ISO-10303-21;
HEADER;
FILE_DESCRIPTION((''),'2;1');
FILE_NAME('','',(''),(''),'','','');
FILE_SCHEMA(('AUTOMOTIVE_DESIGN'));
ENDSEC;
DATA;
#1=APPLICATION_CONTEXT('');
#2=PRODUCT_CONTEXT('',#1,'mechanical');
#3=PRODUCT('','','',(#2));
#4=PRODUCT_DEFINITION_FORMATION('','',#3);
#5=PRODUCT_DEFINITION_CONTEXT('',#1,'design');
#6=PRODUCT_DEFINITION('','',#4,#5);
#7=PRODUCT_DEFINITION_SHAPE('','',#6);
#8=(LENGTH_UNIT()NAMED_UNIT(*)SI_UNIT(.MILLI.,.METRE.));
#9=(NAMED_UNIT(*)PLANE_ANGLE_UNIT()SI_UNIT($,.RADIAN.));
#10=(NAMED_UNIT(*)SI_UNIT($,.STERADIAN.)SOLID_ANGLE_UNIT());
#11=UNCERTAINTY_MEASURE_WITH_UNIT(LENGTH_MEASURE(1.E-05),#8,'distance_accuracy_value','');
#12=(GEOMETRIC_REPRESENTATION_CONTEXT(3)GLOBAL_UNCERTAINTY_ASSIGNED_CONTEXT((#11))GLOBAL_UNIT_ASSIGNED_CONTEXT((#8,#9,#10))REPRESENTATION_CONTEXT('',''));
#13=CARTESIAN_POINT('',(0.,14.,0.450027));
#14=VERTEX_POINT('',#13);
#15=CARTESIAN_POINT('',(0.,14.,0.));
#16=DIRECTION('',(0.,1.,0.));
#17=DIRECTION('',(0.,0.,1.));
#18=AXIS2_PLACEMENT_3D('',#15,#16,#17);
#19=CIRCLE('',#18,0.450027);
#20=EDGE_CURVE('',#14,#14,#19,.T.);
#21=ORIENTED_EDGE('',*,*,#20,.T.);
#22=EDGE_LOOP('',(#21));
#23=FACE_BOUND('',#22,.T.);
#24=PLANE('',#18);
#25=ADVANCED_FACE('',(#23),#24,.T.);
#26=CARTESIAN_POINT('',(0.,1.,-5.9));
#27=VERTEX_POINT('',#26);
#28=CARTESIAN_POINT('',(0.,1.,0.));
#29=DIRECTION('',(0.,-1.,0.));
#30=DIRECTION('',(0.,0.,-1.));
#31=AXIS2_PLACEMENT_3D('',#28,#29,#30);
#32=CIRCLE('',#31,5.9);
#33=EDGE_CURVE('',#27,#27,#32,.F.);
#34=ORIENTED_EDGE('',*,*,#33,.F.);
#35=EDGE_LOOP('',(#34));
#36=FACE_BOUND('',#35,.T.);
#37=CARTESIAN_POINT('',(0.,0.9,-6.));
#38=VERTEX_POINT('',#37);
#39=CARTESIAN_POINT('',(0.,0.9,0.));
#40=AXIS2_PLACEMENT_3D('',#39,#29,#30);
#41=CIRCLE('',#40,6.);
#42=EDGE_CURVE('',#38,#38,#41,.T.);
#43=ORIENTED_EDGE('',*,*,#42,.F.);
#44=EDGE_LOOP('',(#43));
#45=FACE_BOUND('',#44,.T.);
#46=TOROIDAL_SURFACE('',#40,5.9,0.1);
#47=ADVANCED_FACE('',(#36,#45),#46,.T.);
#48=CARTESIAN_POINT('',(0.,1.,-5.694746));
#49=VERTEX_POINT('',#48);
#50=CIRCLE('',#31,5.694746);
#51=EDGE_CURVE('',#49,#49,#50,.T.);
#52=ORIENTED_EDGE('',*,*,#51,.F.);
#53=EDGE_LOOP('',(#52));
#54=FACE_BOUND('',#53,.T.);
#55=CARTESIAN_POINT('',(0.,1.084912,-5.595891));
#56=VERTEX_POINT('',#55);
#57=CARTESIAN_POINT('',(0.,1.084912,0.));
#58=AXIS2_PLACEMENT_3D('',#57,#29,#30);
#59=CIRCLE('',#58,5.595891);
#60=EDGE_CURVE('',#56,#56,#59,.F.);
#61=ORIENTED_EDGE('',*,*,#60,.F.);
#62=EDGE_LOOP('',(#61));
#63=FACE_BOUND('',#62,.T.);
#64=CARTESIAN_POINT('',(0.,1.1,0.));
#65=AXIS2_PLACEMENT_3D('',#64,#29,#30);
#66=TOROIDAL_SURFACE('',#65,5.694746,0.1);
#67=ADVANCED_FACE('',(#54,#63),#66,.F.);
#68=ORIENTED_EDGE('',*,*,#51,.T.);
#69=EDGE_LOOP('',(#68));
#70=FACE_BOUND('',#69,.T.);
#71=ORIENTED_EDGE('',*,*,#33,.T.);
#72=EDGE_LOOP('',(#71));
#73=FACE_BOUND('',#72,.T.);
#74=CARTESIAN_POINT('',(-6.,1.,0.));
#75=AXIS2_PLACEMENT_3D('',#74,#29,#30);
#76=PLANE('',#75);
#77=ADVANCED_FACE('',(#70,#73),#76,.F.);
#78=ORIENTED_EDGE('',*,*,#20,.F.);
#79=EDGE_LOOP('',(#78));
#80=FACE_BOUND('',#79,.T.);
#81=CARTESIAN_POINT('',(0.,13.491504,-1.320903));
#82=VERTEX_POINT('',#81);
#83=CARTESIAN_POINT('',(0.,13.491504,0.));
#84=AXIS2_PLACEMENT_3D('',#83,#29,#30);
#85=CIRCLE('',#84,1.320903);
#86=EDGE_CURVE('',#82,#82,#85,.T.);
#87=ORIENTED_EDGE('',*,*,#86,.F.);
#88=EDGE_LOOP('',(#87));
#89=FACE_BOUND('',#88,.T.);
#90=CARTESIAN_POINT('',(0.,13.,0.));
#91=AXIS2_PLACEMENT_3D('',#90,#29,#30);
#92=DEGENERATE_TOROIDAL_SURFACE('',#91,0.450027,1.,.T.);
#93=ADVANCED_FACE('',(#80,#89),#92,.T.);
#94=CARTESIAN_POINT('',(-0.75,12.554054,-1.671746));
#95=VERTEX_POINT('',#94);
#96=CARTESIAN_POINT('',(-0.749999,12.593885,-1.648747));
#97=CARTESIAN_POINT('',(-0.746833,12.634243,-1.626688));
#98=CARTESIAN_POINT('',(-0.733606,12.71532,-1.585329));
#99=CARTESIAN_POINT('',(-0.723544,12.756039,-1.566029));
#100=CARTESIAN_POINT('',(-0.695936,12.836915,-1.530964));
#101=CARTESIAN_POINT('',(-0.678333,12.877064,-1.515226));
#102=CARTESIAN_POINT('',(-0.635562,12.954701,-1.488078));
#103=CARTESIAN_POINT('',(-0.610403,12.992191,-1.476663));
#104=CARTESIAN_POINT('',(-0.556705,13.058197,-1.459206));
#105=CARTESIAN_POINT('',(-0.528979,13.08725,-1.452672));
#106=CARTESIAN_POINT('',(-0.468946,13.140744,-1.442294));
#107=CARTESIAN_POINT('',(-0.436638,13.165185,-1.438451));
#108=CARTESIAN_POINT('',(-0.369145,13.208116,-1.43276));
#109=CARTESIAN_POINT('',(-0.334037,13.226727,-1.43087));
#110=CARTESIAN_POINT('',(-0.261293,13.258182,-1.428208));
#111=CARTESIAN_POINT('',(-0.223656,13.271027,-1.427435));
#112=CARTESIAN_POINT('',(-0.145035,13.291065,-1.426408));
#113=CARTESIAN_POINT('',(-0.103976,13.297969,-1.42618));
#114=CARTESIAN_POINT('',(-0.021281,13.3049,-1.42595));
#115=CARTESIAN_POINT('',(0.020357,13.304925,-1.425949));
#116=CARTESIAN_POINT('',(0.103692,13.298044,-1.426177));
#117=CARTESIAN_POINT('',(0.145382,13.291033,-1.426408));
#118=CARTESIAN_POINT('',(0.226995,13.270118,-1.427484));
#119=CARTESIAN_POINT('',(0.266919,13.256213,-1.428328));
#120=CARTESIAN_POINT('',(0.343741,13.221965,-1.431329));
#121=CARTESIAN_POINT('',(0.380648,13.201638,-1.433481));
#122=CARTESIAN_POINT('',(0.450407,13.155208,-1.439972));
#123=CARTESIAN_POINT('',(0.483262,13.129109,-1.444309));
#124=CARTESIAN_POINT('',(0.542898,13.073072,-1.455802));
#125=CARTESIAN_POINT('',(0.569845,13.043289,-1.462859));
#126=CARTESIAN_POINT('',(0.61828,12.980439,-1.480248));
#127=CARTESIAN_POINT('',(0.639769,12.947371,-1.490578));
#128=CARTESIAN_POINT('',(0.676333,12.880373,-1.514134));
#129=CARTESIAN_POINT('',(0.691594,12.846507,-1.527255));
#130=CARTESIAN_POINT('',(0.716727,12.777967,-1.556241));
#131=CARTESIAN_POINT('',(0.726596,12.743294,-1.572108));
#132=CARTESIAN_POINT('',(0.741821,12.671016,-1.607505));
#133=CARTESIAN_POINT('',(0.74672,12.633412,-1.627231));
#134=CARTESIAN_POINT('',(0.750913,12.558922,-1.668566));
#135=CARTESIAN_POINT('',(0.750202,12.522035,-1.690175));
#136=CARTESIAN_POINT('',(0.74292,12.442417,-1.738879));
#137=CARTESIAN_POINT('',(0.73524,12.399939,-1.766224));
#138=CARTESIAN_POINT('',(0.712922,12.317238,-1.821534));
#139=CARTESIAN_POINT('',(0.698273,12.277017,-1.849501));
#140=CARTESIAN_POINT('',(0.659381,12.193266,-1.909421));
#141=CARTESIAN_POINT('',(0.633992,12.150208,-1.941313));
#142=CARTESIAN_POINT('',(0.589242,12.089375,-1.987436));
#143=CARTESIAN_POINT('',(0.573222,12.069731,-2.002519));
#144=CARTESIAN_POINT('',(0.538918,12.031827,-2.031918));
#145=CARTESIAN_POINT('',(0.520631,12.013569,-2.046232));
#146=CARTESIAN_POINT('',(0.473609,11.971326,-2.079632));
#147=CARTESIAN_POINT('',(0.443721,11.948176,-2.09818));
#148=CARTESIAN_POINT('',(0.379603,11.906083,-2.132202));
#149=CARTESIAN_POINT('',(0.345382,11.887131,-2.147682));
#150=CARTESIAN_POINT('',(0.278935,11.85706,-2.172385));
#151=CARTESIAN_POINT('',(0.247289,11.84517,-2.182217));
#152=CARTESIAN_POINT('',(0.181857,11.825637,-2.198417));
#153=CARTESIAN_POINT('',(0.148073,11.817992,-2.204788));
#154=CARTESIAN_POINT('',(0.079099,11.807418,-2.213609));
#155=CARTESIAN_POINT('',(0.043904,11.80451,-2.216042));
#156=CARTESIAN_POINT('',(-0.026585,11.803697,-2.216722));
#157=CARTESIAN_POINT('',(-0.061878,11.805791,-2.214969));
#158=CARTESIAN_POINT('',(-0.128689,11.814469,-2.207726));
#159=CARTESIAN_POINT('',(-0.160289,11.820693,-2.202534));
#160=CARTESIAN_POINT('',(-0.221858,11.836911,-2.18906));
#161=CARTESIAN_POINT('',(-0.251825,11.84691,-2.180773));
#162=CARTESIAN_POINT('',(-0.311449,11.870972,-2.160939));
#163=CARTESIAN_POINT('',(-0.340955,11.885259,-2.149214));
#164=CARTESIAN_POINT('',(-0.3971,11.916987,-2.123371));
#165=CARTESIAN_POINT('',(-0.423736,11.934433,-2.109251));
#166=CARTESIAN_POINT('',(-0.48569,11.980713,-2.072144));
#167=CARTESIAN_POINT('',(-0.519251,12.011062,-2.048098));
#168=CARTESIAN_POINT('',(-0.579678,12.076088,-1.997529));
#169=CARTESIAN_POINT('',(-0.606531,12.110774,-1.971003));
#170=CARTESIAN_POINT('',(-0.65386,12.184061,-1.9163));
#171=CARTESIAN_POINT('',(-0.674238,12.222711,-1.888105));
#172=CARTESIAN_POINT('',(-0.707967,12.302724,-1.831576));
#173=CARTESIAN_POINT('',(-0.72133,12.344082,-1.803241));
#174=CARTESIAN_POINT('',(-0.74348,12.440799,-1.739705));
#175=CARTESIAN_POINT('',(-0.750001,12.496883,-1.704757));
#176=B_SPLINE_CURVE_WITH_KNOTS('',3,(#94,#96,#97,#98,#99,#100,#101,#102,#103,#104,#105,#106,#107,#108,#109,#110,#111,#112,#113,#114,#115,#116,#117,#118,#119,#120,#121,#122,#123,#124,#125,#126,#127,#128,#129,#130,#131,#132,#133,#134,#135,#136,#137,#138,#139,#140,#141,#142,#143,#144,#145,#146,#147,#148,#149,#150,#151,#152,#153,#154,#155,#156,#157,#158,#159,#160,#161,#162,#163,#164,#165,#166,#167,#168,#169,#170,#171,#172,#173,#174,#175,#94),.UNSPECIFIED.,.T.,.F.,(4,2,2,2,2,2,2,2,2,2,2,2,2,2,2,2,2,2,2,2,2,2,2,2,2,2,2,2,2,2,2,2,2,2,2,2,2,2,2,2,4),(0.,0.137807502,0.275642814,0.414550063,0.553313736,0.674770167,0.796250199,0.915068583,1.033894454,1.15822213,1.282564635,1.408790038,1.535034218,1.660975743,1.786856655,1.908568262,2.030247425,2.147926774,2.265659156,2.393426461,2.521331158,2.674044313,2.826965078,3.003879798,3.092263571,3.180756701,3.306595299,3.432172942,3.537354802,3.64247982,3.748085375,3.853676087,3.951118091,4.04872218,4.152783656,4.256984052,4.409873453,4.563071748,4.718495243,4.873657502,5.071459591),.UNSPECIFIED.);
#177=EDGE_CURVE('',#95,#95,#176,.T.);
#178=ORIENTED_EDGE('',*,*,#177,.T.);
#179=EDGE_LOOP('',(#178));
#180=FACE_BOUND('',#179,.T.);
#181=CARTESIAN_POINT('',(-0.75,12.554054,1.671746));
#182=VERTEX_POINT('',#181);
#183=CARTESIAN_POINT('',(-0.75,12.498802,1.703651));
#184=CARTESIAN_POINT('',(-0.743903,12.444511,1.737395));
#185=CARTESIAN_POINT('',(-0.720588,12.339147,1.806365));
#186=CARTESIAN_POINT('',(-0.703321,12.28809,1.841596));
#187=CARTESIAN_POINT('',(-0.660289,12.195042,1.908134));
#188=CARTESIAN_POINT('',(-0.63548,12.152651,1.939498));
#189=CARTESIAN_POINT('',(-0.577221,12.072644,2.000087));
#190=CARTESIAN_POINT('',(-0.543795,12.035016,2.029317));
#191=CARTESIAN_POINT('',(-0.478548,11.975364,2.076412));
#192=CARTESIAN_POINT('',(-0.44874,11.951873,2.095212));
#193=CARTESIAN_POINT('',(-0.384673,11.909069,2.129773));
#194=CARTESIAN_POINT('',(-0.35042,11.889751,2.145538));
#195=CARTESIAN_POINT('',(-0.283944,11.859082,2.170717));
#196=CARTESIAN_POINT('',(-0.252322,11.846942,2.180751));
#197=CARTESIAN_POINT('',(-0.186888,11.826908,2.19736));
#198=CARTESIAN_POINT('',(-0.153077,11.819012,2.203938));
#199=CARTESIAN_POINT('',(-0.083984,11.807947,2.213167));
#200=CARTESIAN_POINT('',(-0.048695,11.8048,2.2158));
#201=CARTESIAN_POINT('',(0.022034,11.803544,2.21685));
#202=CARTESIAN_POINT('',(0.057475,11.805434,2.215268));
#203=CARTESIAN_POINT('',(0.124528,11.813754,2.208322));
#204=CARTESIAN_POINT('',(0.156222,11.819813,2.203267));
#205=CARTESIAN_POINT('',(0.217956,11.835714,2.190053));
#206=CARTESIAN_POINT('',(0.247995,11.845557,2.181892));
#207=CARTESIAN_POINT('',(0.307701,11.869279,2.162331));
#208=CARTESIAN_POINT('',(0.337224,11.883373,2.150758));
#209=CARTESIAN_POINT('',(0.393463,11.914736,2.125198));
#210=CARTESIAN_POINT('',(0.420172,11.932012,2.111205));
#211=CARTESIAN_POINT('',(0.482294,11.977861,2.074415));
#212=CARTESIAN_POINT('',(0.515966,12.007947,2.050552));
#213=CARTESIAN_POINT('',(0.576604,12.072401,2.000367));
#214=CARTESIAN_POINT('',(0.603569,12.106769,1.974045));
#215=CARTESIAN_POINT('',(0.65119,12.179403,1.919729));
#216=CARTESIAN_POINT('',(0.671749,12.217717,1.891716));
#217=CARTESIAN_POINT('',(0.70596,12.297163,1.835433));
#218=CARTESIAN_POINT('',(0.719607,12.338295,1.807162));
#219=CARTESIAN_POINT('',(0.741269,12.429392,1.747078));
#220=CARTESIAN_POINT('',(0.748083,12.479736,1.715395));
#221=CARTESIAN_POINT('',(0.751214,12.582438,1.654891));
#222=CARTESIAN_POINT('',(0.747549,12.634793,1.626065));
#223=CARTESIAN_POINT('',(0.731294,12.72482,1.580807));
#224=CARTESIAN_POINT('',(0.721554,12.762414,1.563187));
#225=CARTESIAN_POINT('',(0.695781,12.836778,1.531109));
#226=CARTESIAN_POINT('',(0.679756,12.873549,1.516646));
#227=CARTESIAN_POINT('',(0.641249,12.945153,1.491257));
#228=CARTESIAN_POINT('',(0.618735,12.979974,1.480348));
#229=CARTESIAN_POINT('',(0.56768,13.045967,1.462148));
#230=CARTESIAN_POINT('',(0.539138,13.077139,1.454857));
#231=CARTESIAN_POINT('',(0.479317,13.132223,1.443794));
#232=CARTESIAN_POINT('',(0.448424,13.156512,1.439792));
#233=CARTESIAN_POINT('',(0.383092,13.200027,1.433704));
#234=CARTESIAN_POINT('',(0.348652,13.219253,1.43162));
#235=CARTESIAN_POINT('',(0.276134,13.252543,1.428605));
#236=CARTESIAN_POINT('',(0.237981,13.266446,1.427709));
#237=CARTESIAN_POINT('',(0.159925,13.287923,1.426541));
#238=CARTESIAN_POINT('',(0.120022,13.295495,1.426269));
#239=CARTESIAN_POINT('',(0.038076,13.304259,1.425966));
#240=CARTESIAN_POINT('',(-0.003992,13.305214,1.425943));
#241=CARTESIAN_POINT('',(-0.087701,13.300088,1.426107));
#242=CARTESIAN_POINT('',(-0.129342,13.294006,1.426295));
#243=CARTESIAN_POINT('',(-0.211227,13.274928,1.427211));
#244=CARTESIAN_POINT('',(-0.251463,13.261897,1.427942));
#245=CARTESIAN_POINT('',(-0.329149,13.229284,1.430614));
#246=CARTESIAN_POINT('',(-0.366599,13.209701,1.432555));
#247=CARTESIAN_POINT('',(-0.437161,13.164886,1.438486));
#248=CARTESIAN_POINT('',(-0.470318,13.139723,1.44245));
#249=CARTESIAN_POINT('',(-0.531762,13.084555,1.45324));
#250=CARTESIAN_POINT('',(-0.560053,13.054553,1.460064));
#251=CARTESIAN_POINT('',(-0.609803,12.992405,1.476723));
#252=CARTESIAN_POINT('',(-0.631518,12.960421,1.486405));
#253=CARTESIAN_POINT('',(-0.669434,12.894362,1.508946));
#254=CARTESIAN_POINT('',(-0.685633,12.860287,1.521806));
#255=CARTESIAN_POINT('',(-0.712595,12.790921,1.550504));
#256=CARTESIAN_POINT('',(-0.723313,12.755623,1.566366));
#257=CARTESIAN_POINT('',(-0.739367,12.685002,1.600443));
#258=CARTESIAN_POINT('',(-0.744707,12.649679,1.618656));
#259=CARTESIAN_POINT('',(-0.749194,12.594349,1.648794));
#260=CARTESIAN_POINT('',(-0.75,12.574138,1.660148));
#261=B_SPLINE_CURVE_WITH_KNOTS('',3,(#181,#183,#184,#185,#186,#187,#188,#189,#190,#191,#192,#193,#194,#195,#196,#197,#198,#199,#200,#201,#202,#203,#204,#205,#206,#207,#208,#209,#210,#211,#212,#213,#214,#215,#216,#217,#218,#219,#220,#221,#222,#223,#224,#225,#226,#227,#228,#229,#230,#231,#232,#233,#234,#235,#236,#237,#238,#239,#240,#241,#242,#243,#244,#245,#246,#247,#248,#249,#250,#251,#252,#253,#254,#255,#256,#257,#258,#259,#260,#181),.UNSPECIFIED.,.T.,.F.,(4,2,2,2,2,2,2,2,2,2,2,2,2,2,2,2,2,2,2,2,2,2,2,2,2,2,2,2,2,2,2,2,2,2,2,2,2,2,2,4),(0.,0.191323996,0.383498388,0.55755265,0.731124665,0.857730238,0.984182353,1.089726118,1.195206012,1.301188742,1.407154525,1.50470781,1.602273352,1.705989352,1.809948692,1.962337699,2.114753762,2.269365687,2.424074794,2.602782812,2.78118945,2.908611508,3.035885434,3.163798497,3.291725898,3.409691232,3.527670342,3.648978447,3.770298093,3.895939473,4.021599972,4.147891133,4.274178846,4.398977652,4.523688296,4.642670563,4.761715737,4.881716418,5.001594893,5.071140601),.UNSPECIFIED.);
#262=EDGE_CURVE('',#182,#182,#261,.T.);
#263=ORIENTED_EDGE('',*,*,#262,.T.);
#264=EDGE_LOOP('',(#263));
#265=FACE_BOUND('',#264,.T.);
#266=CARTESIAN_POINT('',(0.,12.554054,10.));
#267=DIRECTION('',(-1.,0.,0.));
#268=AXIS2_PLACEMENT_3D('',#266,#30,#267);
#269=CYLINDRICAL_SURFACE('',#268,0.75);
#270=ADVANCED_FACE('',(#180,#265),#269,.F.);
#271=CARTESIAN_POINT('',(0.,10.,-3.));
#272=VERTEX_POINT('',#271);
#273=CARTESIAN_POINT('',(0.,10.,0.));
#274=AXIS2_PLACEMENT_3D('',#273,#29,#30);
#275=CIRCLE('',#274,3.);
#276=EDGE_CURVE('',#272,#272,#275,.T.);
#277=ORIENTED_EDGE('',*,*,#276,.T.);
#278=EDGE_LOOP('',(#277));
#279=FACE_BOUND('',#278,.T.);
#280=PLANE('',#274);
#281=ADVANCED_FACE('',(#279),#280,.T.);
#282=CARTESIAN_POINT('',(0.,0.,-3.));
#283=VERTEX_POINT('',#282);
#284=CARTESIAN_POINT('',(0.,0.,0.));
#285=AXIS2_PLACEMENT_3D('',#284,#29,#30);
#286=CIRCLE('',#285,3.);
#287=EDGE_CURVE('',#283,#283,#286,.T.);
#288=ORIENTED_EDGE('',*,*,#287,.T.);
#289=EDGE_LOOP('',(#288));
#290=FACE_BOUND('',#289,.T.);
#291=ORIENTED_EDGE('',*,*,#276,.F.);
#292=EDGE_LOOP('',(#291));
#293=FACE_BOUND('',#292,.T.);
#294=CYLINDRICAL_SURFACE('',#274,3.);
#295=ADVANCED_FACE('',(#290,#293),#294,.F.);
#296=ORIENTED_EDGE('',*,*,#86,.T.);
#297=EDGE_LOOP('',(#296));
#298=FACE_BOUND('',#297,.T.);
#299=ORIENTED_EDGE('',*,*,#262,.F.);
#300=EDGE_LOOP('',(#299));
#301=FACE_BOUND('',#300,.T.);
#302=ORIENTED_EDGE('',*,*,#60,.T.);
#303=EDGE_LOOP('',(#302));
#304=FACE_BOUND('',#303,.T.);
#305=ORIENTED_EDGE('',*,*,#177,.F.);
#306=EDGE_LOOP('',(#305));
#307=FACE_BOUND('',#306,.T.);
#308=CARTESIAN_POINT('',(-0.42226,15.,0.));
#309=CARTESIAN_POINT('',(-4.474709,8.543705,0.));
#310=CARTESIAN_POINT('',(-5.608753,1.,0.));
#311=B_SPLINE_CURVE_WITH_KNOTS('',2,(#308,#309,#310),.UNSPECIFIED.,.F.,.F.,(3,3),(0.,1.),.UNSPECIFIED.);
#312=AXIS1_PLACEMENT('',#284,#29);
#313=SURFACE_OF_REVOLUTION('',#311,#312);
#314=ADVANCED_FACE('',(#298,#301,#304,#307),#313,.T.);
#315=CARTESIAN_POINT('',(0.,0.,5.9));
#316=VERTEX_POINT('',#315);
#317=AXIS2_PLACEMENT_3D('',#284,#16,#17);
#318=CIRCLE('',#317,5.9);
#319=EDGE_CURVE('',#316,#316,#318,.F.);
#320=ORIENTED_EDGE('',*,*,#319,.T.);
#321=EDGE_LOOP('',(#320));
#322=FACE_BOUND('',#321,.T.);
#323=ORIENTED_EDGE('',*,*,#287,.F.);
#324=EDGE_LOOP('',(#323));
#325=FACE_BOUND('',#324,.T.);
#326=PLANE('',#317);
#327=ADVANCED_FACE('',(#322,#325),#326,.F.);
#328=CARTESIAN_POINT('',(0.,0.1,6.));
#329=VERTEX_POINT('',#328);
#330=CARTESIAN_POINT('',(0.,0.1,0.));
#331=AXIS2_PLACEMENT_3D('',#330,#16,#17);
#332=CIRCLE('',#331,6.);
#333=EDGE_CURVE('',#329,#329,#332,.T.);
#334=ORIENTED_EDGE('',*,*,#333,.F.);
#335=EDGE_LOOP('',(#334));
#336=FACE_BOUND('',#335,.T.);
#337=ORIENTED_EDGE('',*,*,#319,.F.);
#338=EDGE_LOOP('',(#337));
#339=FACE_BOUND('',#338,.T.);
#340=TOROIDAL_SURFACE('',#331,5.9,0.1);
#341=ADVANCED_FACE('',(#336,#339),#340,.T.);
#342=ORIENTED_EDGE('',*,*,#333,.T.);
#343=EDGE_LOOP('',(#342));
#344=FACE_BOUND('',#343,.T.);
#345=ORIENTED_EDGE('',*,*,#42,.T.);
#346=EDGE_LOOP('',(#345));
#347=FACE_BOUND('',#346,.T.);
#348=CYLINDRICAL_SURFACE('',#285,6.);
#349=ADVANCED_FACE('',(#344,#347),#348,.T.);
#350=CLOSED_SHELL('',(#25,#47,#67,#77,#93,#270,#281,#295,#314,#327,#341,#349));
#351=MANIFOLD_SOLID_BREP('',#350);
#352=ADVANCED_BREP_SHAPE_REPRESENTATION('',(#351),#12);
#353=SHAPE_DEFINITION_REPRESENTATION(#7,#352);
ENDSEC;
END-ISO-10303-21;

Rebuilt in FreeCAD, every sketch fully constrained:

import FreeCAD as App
import Part
import Sketcher


def edges_at(feature, points):
    """Names of the edges that pass closest to the given points."""
    edges = feature.Shape.Edges
    near = lambda p: min(range(len(edges)), key=lambda i: edges[i].distToShape(Part.Vertex(*p))[0])
    return sorted({f"Edge{near(p) + 1}" for p in points})

doc = App.newDocument("Part")
body = doc.addObject("PartDesign::Body", "Body")

sketch1 = body.newObject("Sketcher::SketchObject", "Sketch")
sketch1.AttachmentSupport = (doc.getObject("XY_Plane"), [""])
sketch1.MapMode = "FlatFace"
sketch1.addGeometry(Part.LineSegment(App.Vector(0, 0, 0), App.Vector(0, 15, 0)), False)
sketch1.addGeometry(Part.LineSegment(App.Vector(0, 15, 0), App.Vector(-0.42226, 15, 0)), False)
sketch1.addGeometry(Part.BSplineCurve([App.Vector(-5.608753, 1, 0), App.Vector(-4.474709, 8.543705, 0), App.Vector(-0.42226, 15, 0)], [3, 3], [0, 1], False, 2, [1, 1, 1], False), False)
sketch1.addGeometry(Part.LineSegment(App.Vector(-5.608753, 1, 0), App.Vector(-6, 1, 0)), False)
sketch1.addGeometry(Part.LineSegment(App.Vector(-6, 1, 0), App.Vector(-6, 0, 0)), False)
sketch1.addGeometry(Part.LineSegment(App.Vector(-6, 0, 0), App.Vector(0, 0, 0)), False)
sketch1.addConstraint(Sketcher.Constraint("Block", 2))
sketch1.addConstraint(Sketcher.Constraint("Coincident", 0, 2, 1, 1))
sketch1.addConstraint(Sketcher.Constraint("Coincident", 1, 2, 2, 2))
sketch1.addConstraint(Sketcher.Constraint("Coincident", 2, 1, 3, 1))
sketch1.addConstraint(Sketcher.Constraint("Coincident", 3, 2, 4, 1))
sketch1.addConstraint(Sketcher.Constraint("Coincident", 4, 2, 5, 1))
sketch1.addConstraint(Sketcher.Constraint("Coincident", 5, 2, 0, 1))
sketch1.addConstraint(Sketcher.Constraint("Vertical", 0))
sketch1.addConstraint(Sketcher.Constraint("Horizontal", 1))
sketch1.addConstraint(Sketcher.Constraint("Horizontal", 3))
sketch1.addConstraint(Sketcher.Constraint("Vertical", 4))
sketch1.addConstraint(Sketcher.Constraint("Horizontal", 5))
sketch1.addConstraint(Sketcher.Constraint("Coincident", 5, 2, -1, 1))
sketch1.addConstraint(Sketcher.Constraint("DistanceX", 5, 1, 5, 2, 6.0))
revolution = body.newObject("PartDesign::Revolution", "Revolution")
revolution.Profile = sketch1
revolution.ReferenceAxis = (sketch1, ["V_Axis"])
revolution.Angle = 360

sketch2 = body.newObject("Sketcher::SketchObject", "Sketch001")
sketch2.AttachmentSupport = (doc.getObject("XZ_Plane"), [""])
sketch2.MapMode = "FlatFace"
sketch2.AttachmentOffset = App.Placement(App.Vector(0, 0, -15), App.Rotation())
sketch2.addGeometry(Part.Circle(App.Vector(0, 0, 0), App.Vector(0, 0, 1), 1.103726), False)
sketch2.addConstraint(Sketcher.Constraint("Coincident", 0, 3, -1, 1))
sketch2.addConstraint(Sketcher.Constraint("Diameter", 0, 2.207451))
pocket1 = body.newObject("PartDesign::Pocket", "Pocket")
pocket1.Profile = sketch2
pocket1.Length = 1
pocket1.Reversed = True
doc.recompute()

fillet = body.newObject("PartDesign::Fillet", "Fillet")
fillet.Base = (pocket1, edges_at(pocket1, [(1.029, 14, 0)]))
fillet.Radius = 1

sketch3 = body.newObject("Sketcher::SketchObject", "Sketch002")
sketch3.AttachmentSupport = (doc.getObject("XY_Plane"), [""])
sketch3.MapMode = "FlatFace"
sketch3.addGeometry(Part.Circle(App.Vector(0, 12.554054, 0), App.Vector(0, 0, 1), 0.75), False)
sketch3.addConstraint(Sketcher.Constraint("PointOnObject", 0, 3, -2))
sketch3.addConstraint(Sketcher.Constraint("Diameter", 0, 1.5))
sketch3.addConstraint(Sketcher.Constraint("DistanceY", -1, 1, 0, 3, 12.554054))
pocket2 = body.newObject("PartDesign::Pocket", "Pocket001")
pocket2.Profile = sketch3
pocket2.Type = "ThroughAll"
pocket2.Midplane = True
doc.recompute()

fillet2 = body.newObject("PartDesign::Fillet", "Fillet001")
fillet2.Base = (pocket2, edges_at(pocket2, [(6, 0, 0), (6, 1, 0), (5.609, 1, 0)]))
fillet2.Radius = 0.1

sketch4 = body.newObject("Sketcher::SketchObject", "Sketch003")
sketch4.AttachmentSupport = (doc.getObject("XZ_Plane"), [""])
sketch4.MapMode = "FlatFace"
sketch4.addGeometry(Part.Circle(App.Vector(0, 0, 0), App.Vector(0, 0, 1), 3), False)
sketch4.addConstraint(Sketcher.Constraint("Coincident", 0, 3, -1, 1))
sketch4.addConstraint(Sketcher.Constraint("Diameter", 0, 6.0))
pocket3 = body.newObject("PartDesign::Pocket", "Pocket002")
pocket3.Profile = sketch4
pocket3.Length = 10

doc.recompute()
